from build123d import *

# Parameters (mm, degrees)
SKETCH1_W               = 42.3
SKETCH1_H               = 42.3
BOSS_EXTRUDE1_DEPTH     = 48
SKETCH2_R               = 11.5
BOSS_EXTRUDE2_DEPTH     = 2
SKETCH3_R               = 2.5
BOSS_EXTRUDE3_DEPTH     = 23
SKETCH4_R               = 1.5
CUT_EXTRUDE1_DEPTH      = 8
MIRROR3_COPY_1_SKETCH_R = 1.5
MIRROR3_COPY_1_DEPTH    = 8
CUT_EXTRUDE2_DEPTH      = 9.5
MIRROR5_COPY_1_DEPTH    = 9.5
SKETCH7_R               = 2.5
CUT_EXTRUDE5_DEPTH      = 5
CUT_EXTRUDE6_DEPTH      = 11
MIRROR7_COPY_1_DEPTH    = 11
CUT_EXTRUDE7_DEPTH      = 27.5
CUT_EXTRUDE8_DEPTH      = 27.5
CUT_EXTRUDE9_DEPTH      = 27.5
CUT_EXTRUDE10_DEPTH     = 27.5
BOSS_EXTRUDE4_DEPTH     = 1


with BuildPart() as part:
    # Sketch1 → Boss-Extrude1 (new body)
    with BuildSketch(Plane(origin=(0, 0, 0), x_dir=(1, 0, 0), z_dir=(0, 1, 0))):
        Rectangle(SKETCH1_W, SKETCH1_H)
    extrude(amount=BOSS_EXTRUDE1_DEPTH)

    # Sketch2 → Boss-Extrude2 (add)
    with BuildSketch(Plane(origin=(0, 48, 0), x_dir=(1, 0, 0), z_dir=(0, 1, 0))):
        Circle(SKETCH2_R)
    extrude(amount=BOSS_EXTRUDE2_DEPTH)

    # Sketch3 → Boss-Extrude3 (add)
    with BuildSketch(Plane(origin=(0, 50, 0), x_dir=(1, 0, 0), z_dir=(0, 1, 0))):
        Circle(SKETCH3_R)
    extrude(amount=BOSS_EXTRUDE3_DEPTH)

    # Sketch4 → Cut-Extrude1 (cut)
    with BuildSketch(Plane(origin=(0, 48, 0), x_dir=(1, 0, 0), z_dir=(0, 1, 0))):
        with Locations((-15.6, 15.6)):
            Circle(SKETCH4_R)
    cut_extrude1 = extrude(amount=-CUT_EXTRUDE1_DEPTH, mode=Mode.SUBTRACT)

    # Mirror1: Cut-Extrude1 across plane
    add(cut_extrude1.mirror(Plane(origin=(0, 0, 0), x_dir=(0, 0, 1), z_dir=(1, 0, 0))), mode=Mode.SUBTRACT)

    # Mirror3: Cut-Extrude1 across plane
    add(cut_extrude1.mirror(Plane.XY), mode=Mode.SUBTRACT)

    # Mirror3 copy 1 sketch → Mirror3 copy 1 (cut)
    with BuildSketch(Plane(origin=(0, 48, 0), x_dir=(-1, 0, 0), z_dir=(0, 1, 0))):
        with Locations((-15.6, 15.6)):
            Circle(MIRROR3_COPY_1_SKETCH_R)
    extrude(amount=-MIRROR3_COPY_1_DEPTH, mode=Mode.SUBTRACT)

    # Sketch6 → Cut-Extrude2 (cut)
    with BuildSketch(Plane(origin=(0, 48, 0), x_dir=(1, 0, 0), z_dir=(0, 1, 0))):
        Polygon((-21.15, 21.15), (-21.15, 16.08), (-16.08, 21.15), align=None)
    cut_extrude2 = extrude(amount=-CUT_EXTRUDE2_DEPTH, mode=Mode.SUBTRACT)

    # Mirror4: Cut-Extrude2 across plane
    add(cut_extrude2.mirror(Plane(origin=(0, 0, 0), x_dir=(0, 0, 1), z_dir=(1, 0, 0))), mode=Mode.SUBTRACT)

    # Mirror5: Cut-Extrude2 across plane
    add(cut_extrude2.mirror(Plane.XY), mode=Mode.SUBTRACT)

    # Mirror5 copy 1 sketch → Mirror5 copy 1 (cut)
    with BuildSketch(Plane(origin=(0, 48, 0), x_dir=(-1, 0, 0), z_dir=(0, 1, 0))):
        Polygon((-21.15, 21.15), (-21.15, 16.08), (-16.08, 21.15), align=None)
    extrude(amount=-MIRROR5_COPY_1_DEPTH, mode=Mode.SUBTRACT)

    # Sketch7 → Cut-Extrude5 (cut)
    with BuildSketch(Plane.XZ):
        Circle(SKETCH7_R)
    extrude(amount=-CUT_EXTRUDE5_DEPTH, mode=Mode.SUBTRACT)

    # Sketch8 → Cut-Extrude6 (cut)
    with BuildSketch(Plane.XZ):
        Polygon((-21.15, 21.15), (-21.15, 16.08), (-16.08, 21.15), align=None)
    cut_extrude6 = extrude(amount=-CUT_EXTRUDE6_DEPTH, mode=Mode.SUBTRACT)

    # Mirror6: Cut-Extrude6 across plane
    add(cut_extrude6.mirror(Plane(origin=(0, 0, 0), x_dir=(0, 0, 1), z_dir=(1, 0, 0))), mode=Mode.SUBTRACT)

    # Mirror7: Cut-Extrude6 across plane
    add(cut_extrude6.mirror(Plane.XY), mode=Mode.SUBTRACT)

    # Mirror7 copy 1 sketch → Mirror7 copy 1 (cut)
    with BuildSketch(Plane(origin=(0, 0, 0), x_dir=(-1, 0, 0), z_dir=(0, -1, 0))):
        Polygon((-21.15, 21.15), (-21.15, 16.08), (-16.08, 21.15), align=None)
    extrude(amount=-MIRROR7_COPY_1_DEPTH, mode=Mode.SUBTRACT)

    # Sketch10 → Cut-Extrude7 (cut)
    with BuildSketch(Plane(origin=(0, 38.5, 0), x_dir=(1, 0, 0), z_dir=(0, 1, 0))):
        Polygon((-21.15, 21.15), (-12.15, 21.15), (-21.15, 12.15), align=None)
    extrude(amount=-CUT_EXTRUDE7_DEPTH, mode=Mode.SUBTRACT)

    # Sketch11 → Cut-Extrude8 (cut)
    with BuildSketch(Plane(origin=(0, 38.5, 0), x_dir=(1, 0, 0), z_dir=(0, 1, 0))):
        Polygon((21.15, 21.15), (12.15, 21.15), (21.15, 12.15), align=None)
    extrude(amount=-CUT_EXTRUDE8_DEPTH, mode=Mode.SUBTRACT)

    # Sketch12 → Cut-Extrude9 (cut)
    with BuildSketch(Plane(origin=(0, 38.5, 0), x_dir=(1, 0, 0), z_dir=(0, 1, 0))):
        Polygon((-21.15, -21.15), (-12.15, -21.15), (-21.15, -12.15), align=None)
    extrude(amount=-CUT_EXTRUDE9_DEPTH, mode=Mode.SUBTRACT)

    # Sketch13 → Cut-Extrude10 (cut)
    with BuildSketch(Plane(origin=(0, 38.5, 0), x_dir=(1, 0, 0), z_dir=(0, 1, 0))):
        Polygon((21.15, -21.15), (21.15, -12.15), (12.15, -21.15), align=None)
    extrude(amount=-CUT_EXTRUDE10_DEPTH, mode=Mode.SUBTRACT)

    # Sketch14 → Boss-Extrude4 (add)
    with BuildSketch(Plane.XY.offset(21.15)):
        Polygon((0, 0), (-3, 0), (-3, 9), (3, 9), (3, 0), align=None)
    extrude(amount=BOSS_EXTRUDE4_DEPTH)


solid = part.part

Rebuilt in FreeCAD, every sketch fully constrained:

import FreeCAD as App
import Part
import Sketcher
from FreeCAD import Vector
Q = App.Units.Quantity


def add_polygon(sketch, points):
    """Adds a closed chain of lines whose ends are joined by coincident constraints."""
    first, n = sketch.GeometryCount, len(points)
    for a, b in zip(points, points[1:] + points[:1]):
        sketch.addGeometry(Part.LineSegment(App.Vector(*a, 0), App.Vector(*b, 0)), False)
    for i in range(n):
        sketch.addConstraint(Sketcher.Constraint("Coincident", first + i, 2, first + (i + 1) % n, 1))

doc = App.newDocument("Part")
body = doc.addObject("PartDesign::Body", "Body")

# Sketch on XZ plane
sketch1 = body.newObject("Sketcher::SketchObject", "Sketch")
sketch1.AttachmentSupport = (doc.getObject("XZ_Plane"), [""])
sketch1.MapMode = "FlatFace"
add_polygon(sketch1, [(-21, -21), (-21, 21), (21, 21), (21, -21)])  # lines 0-3
sketch1.addConstraint([
    Sketcher.Constraint("Vertical", 0),
    Sketcher.Constraint("Horizontal", 1),
    Sketcher.Constraint("Vertical", 2),
    Sketcher.Constraint("Horizontal", 3),
    Sketcher.Constraint("Symmetric", 0, 2, 2, 2, -1, 1),
    Sketcher.Constraint("Equal", 3, 0),
    Sketcher.Constraint("DistanceX", 1, 1, 1, 2, Q("42.3 mm")),
])
pad1 = body.newObject("PartDesign::Pad", "Pad")
pad1.Profile = sketch1
pad1.Length = 48
pad1.Reversed = True

# Sketch on XZ plane
sketch2 = body.newObject("Sketcher::SketchObject", "Sketch001")
sketch2.AttachmentSupport = (doc.getObject("XZ_Plane"), [""])
sketch2.MapMode = "FlatFace"
sketch2.AttachmentOffset = App.Placement(Vector(0, 0, -48), App.Rotation())
sketch2.addGeometry(Part.Circle(Vector(0, 0, 0), Vector(0, 0, 1), 12), False)
sketch2.addConstraint([
    Sketcher.Constraint("Coincident", 0, 3, -1, 1),
    Sketcher.Constraint("Diameter", 0, Q("23 mm")),
])
pad2 = body.newObject("PartDesign::Pad", "Pad001")
pad2.Profile = sketch2
pad2.Length = 2
pad2.Reversed = True

# Sketch on XZ plane
sketch3 = body.newObject("Sketcher::SketchObject", "Sketch002")
sketch3.AttachmentSupport = (doc.getObject("XZ_Plane"), [""])
sketch3.MapMode = "FlatFace"
sketch3.AttachmentOffset = App.Placement(Vector(0, 0, -50), App.Rotation())
sketch3.addGeometry(Part.Circle(Vector(0, 0, 0), Vector(0, 0, 1), 2.5), False)
sketch3.addConstraint([
    Sketcher.Constraint("Coincident", 0, 3, -1, 1),
    Sketcher.Constraint("Diameter", 0, Q("5 mm")),
])
pad3 = body.newObject("PartDesign::Pad", "Pad002")
pad3.Profile = sketch3
pad3.Length = 23
pad3.Reversed = True

# Sketch on XZ plane
sketch4 = body.newObject("Sketcher::SketchObject", "Sketch003")
sketch4.AttachmentSupport = (doc.getObject("XZ_Plane"), [""])
sketch4.MapMode = "FlatFace"
sketch4.AttachmentOffset = App.Placement(Vector(0, 0, -48), App.Rotation())
sketch4.addGeometry(Part.Circle(Vector(-15.6, -15.6, 0), Vector(0, 0, 1), 1.5), False)
sketch4.addConstraint([
    Sketcher.Constraint("Diameter", 0, Q("3 mm")),
    Sketcher.Constraint("DistanceX", 0, 3, -1, 1, Q("15.6 mm")),
    Sketcher.Constraint("DistanceY", 0, 3, -1, 1, Q("15.6 mm")),
])
pocket1 = body.newObject("PartDesign::Pocket", "Pocket")
pocket1.Profile = sketch4
pocket1.Length = 8
pocket1.Reversed = True
doc.recompute()

mirrored = body.newObject("PartDesign::Mirrored", "Mirrored")
mirrored.Originals = [pocket1]
mirrored.MirrorPlane = (doc.getObject("YZ_Plane"), [""])
body.Tip = mirrored
doc.recompute()

mirrored2 = body.newObject("PartDesign::Mirrored", "Mirrored001")
mirrored2.Originals = [pocket1]
mirrored2.MirrorPlane = (doc.getObject("XY_Plane"), [""])
body.Tip = mirrored2

# Sketch on XZ plane
sketch5 = body.newObject("Sketcher::SketchObject", "Sketch004")
sketch5.AttachmentSupport = (doc.getObject("XZ_Plane"), [""])
sketch5.MapMode = "FlatFace"
sketch5.AttachmentOffset = App.Placement(Vector(0, 0, -48), App.Rotation())
sketch5.addGeometry(Part.Circle(Vector(15.6, 15.6, 0), Vector(0, 0, 1), 1.5), False)
sketch5.addConstraint([
    Sketcher.Constraint("Diameter", 0, Q("3 mm")),
    Sketcher.Constraint("DistanceX", -1, 1, 0, 3, Q("15.6 mm")),
    Sketcher.Constraint("DistanceY", -1, 1, 0, 3, Q("15.6 mm")),
])
pocket2 = body.newObject("PartDesign::Pocket", "Pocket001")
pocket2.Profile = sketch5
pocket2.Length = 8
pocket2.Reversed = True

# Sketch on XZ plane
sketch6 = body.newObject("Sketcher::SketchObject", "Sketch005")
sketch6.AttachmentSupport = (doc.getObject("XZ_Plane"), [""])
sketch6.MapMode = "FlatFace"
sketch6.AttachmentOffset = App.Placement(Vector(0, 0, -48), App.Rotation())
add_polygon(sketch6, [(-21, -21), (-21, -16), (-16, -21)])  # lines 0-2
sketch6.addConstraint([
    Sketcher.Constraint("Vertical", 0),
    Sketcher.Constraint("Horizontal", 2),
    Sketcher.Constraint("Equal", 2, 0),
    Sketcher.Constraint("DistanceX", 2, 2, 2, 1, Q("5.07 mm")),
    Sketcher.Constraint("DistanceX", 0, 2, -1, 1, Q("21.15 mm")),
    Sketcher.Constraint("DistanceY", 0, 2, -1, 1, Q("16.08 mm")),
])
pocket3 = body.newObject("PartDesign::Pocket", "Pocket002")
pocket3.Profile = sketch6
pocket3.Length = 9.5
pocket3.Reversed = True
doc.recompute()

mirrored3 = body.newObject("PartDesign::Mirrored", "Mirrored002")
mirrored3.Originals = [pocket3]
mirrored3.MirrorPlane = (doc.getObject("YZ_Plane"), [""])
body.Tip = mirrored3
doc.recompute()

mirrored4 = body.newObject("PartDesign::Mirrored", "Mirrored003")
mirrored4.Originals = [pocket3]
mirrored4.MirrorPlane = (doc.getObject("XY_Plane"), [""])
body.Tip = mirrored4

# Sketch on XZ plane
sketch7 = body.newObject("Sketcher::SketchObject", "Sketch006")
sketch7.AttachmentSupport = (doc.getObject("XZ_Plane"), [""])
sketch7.MapMode = "FlatFace"
sketch7.AttachmentOffset = App.Placement(Vector(0, 0, -48), App.Rotation())
add_polygon(sketch7, [(21, 21), (21, 16), (16, 21)])  # lines 0-2
sketch7.addConstraint([
    Sketcher.Constraint("Vertical", 0),
    Sketcher.Constraint("Horizontal", 2),
    Sketcher.Constraint("Equal", 2, 0),
    Sketcher.Constraint("DistanceX", 2, 1, 2, 2, Q("5.07 mm")),
    Sketcher.Constraint("DistanceX", -1, 1, 0, 2, Q("21.15 mm")),
    Sketcher.Constraint("DistanceY", -1, 1, 0, 2, Q("16.08 mm")),
])
pocket4 = body.newObject("PartDesign::Pocket", "Pocket003")
pocket4.Profile = sketch7
pocket4.Length = 9.5
pocket4.Reversed = True

# Sketch on XZ plane
sketch8 = body.newObject("Sketcher::SketchObject", "Sketch007")
sketch8.AttachmentSupport = (doc.getObject("XZ_Plane"), [""])
sketch8.MapMode = "FlatFace"
sketch8.addGeometry(Part.Circle(Vector(0, 0, 0), Vector(0, 0, 1), 2.5), False)
sketch8.addConstraint([
    Sketcher.Constraint("Coincident", 0, 3, -1, 1),
    Sketcher.Constraint("Diameter", 0, Q("5 mm")),
])
pocket5 = body.newObject("PartDesign::Pocket", "Pocket004")
pocket5.Profile = sketch8
pocket5.Length = 5

# Sketch on XZ plane
sketch9 = body.newObject("Sketcher::SketchObject", "Sketch008")
sketch9.AttachmentSupport = (doc.getObject("XZ_Plane"), [""])
sketch9.MapMode = "FlatFace"
add_polygon(sketch9, [(-21, 21), (-21, 16), (-16, 21)])  # lines 0-2
sketch9.addConstraint([
    Sketcher.Constraint("Vertical", 0),
    Sketcher.Constraint("Horizontal", 2),
    Sketcher.Constraint("Equal", 2, 0),
    Sketcher.Constraint("DistanceX", 2, 2, 2, 1, Q("5.07 mm")),
    Sketcher.Constraint("DistanceX", 0, 2, -1, 1, Q("21.15 mm")),
    Sketcher.Constraint("DistanceY", -1, 1, 0, 2, Q("16.08 mm")),
])
pocket6 = body.newObject("PartDesign::Pocket", "Pocket005")
pocket6.Profile = sketch9
pocket6.Length = 11
doc.recompute()

mirrored5 = body.newObject("PartDesign::Mirrored", "Mirrored004")
mirrored5.Originals = [pocket6]
mirrored5.MirrorPlane = (doc.getObject("YZ_Plane"), [""])
body.Tip = mirrored5
doc.recompute()

mirrored6 = body.newObject("PartDesign::Mirrored", "Mirrored005")
mirrored6.Originals = [pocket6]
mirrored6.MirrorPlane = (doc.getObject("XY_Plane"), [""])
body.Tip = mirrored6

# Sketch on XZ plane
sketch10 = body.newObject("Sketcher::SketchObject", "Sketch009")
sketch10.AttachmentSupport = (doc.getObject("XZ_Plane"), [""])
sketch10.MapMode = "FlatFace"
add_polygon(sketch10, [(21, -21), (21, -16), (16, -21)])  # lines 0-2
sketch10.addConstraint([
    Sketcher.Constraint("Vertical", 0),
    Sketcher.Constraint("Horizontal", 2),
    Sketcher.Constraint("Equal", 2, 0),
    Sketcher.Constraint("DistanceX", 2, 1, 2, 2, Q("5.07 mm")),
    Sketcher.Constraint("DistanceX", -1, 1, 0, 2, Q("21.15 mm")),
    Sketcher.Constraint("DistanceY", 0, 2, -1, 1, Q("16.08 mm")),
])
pocket7 = body.newObject("PartDesign::Pocket", "Pocket006")
pocket7.Profile = sketch10
pocket7.Length = 11

# Sketch on XZ plane
sketch11 = body.newObject("Sketcher::SketchObject", "Sketch010")
sketch11.AttachmentSupport = (doc.getObject("XZ_Plane"), [""])
sketch11.MapMode = "FlatFace"
sketch11.AttachmentOffset = App.Placement(Vector(0, 0, -38.5), App.Rotation())
add_polygon(sketch11, [(-12, -21), (-21, -21), (-21, -12)])  # lines 0-2
sketch11.addConstraint([
    Sketcher.Constraint("Horizontal", 0),
    Sketcher.Constraint("Vertical", 1),
    Sketcher.Constraint("Equal", 0, 1),
    Sketcher.Constraint("DistanceX", 0, 2, 0, 1, Q("9 mm")),
    Sketcher.Constraint("DistanceX", 0, 2, -1, 1, Q("21.15 mm")),
    Sketcher.Constraint("DistanceY", 0, 2, -1, 1, Q("21.15 mm")),
])
pocket8 = body.newObject("PartDesign::Pocket", "Pocket007")
pocket8.Profile = sketch11
pocket8.Length = 27.5
pocket8.Reversed = True

# Sketch on XZ plane
sketch12 = body.newObject("Sketcher::SketchObject", "Sketch011")
sketch12.AttachmentSupport = (doc.getObject("XZ_Plane"), [""])
sketch12.MapMode = "FlatFace"
sketch12.AttachmentOffset = App.Placement(Vector(0, 0, -38.5), App.Rotation())
add_polygon(sketch12, [(21, -21), (12, -21), (21, -12)])  # lines 0-2
sketch12.addConstraint([
    Sketcher.Constraint("Horizontal", 0),
    Sketcher.Constraint("Vertical", 2),
    Sketcher.Constraint("Equal", 0, 2),
    Sketcher.Constraint("DistanceX", 0, 2, 0, 1, Q("9 mm")),
    Sketcher.Constraint("DistanceX", -1, 1, 0, 2, Q("12.15 mm")),
    Sketcher.Constraint("DistanceY", 0, 2, -1, 1, Q("21.15 mm")),
])
pocket9 = body.newObject("PartDesign::Pocket", "Pocket008")
pocket9.Profile = sketch12
pocket9.Length = 27.5
pocket9.Reversed = True

# Sketch on XZ plane
sketch13 = body.newObject("Sketcher::SketchObject", "Sketch012")
sketch13.AttachmentSupport = (doc.getObject("XZ_Plane"), [""])
sketch13.MapMode = "FlatFace"
sketch13.AttachmentOffset = App.Placement(Vector(0, 0, -38.5), App.Rotation())
add_polygon(sketch13, [(-21, 21), (-12, 21), (-21, 12)])  # lines 0-2
sketch13.addConstraint([
    Sketcher.Constraint("Horizontal", 0),
    Sketcher.Constraint("Vertical", 2),
    Sketcher.Constraint("Equal", 0, 2),
    Sketcher.Constraint("DistanceX", 0, 1, 0, 2, Q("9 mm")),
    Sketcher.Constraint("DistanceX", 0, 2, -1, 1, Q("12.15 mm")),
    Sketcher.Constraint("DistanceY", -1, 1, 0, 2, Q("21.15 mm")),
])
pocket10 = body.newObject("PartDesign::Pocket", "Pocket009")
pocket10.Profile = sketch13
pocket10.Length = 27.5
pocket10.Reversed = True

# Sketch on XZ plane
sketch14 = body.newObject("Sketcher::SketchObject", "Sketch013")
sketch14.AttachmentSupport = (doc.getObject("XZ_Plane"), [""])
sketch14.MapMode = "FlatFace"
sketch14.AttachmentOffset = App.Placement(Vector(0, 0, -38.5), App.Rotation())
add_polygon(sketch14, [(21, 21), (21, 12), (12, 21)])  # lines 0-2
sketch14.addConstraint([
    Sketcher.Constraint("Vertical", 0),
    Sketcher.Constraint("Horizontal", 2),
    Sketcher.Constraint("Equal", 2, 0),
    Sketcher.Constraint("DistanceX", 2, 1, 2, 2, Q("9 mm")),
    Sketcher.Constraint("DistanceX", -1, 1, 0, 2, Q("21.15 mm")),
    Sketcher.Constraint("DistanceY", -1, 1, 0, 2, Q("12.15 mm")),
])
pocket11 = body.newObject("PartDesign::Pocket", "Pocket010")
pocket11.Profile = sketch14
pocket11.Length = 27.5
pocket11.Reversed = True

# Sketch on XY plane
sketch15 = body.newObject("Sketcher::SketchObject", "Sketch014")
sketch15.AttachmentSupport = (doc.getObject("XY_Plane"), [""])
sketch15.MapMode = "FlatFace"
sketch15.AttachmentOffset = App.Placement(Vector(0, 0, 21.15), App.Rotation())
add_polygon(sketch15, [(-3, 0), (3, 0), (3, 9), (-3, 9)])  # lines 0-3
sketch15.addConstraint([
    Sketcher.Constraint("Horizontal", 0),
    Sketcher.Constraint("Vertical", 1),
    Sketcher.Constraint("Horizontal", 2),
    Sketcher.Constraint("Vertical", 3),
    Sketcher.Constraint("Symmetric", 0, 2, 3, 2, -1, 1),
    Sketcher.Constraint("DistanceX", 0, 1, 0, 2, Q("6 mm")),
    Sketcher.Constraint("DistanceY", 1, 1, 1, 2, Q("9 mm")),
])
pad4 = body.newObject("PartDesign::Pad", "Pad003")
pad4.Profile = sketch15
pad4.Length = 1

doc.recompute()
